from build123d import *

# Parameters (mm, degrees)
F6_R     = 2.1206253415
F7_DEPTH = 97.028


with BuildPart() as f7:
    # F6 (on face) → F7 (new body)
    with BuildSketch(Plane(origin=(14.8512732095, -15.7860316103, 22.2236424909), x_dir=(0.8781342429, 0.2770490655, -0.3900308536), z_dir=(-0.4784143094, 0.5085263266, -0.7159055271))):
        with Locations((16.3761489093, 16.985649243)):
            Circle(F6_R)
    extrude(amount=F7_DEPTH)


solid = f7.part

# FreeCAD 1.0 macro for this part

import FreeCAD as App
import Part
import Sketcher
Q = App.Units.Quantity

doc = App.newDocument("Part")
body = doc.addObject("PartDesign::Body", "Body")

sketch1 = body.newObject("Sketcher::SketchObject", "Sketch")
sketch1.Placement = App.Placement(App.Vector(14.851273, -15.786032, 22.223642), App.Rotation(App.Vector(0.878134243, 0.277049065, -0.390030854), App.Vector(-0.000000001, -0.8152575, -0.579098618), App.Vector(-0.478414309, 0.508526327, -0.715905527), "ZXY"))
sketch1.addGeometry(Part.Circle(App.Vector(16.376149, 16.985649, 0), App.Vector(0, 0, 1), 2.120625), False)
sketch1.addConstraint([
    Sketcher.Constraint("Diameter", 0, Q("4.241251 mm")),
    Sketcher.Constraint("DistanceX", -1, 1, 0, 3, Q("16.376149 mm")),
    Sketcher.Constraint("DistanceY", -1, 1, 0, 3, Q("16.985649 mm")),
])
pad1 = body.newObject("PartDesign::Pad", "Pad")
pad1.Profile = sketch1
pad1.Length = Q("3.82 in")

doc.recompute()
